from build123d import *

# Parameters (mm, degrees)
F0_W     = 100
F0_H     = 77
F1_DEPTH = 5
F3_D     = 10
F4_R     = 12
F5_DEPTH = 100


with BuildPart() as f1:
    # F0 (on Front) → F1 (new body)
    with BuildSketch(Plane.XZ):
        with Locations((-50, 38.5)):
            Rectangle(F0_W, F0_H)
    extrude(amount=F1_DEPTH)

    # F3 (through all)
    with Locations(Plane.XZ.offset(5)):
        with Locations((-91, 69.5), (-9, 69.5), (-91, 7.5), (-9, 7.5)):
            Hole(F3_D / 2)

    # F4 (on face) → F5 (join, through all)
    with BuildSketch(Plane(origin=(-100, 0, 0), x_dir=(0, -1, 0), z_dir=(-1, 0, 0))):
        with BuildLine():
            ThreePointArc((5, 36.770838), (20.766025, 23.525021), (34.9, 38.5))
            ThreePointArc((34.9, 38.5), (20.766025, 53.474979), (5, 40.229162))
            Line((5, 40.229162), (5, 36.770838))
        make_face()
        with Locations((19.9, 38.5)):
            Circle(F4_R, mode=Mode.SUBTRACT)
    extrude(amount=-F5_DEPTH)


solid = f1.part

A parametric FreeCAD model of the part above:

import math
import FreeCAD as App
import Part
import Sketcher
Q = App.Units.Quantity

doc = App.newDocument("Part")
body = doc.addObject("PartDesign::Body", "Body")

sketch1 = doc.addObject("Sketcher::SketchObject", "Sketch")
body.addObject(sketch1)
sketch1.AttachmentSupport = (doc.XZ_Plane, [""])
sketch1.MapMode = "FlatFace"
sketch1.addGeometry([
    Part.LineSegment(App.Vector(-100, 77, 0), App.Vector(-100, 0, 0)),
    Part.LineSegment(App.Vector(-100, 0, 0), App.Vector(0, 0, 0)),
    Part.LineSegment(App.Vector(0, 0, 0), App.Vector(0, 77, 0)),
    Part.LineSegment(App.Vector(0, 77, 0), App.Vector(-100, 77, 0)),
], False)
sketch1.addConstraint([
    Sketcher.Constraint("Coincident", 0, 2, 1, 1),
    Sketcher.Constraint("Coincident", 1, 2, 2, 1),
    Sketcher.Constraint("Coincident", 2, 2, 3, 1),
    Sketcher.Constraint("Coincident", 3, 2, 0, 1),
    Sketcher.Constraint("Vertical", 0),
    Sketcher.Constraint("Horizontal", 1),
    Sketcher.Constraint("Vertical", 2),
    Sketcher.Constraint("Horizontal", 3),
    Sketcher.Constraint("Coincident", 1, 2, -1, 1),
    Sketcher.Constraint("DistanceX", 1, 1, 1, 2, Q("100 mm")),
    Sketcher.Constraint("DistanceY", 0, 2, 0, 1, Q("77 mm")),
])
pad1 = doc.addObject("PartDesign::Pad", "Pad")
body.addObject(pad1)
pad1.Profile = sketch1
pad1.Length = 5

sketch2 = doc.addObject("Sketcher::SketchObject", "Sketch001")
body.addObject(sketch2)
sketch2.AttachmentSupport = (doc.XZ_Plane, [""])
sketch2.MapMode = "FlatFace"
sketch2.AttachmentOffset = App.Placement(App.Vector(0, 0, 5), App.Rotation())
sketch2.addGeometry([
    Part.Circle(App.Vector(-91, 70, 0), App.Vector(0, 0, 1), 5),
    Part.Circle(App.Vector(-9, 70, 0), App.Vector(0, 0, 1), 5),
    Part.Circle(App.Vector(-91, 8, 0), App.Vector(0, 0, 1), 5),
    Part.Circle(App.Vector(-9, 8, 0), App.Vector(0, 0, 1), 5),
], False)
sketch2.addConstraint([
    Sketcher.Constraint("Equal", 0, 1),
    Sketcher.Constraint("Equal", 1, 2),
    Sketcher.Constraint("Equal", 2, 3),
    Sketcher.Constraint("Horizontal", 0, 3, 1, 3),
    Sketcher.Constraint("Horizontal", 2, 3, 3, 3),
    Sketcher.Constraint("Vertical", 0, 3, 2, 3),
    Sketcher.Constraint("Vertical", 1, 3, 3, 3),
    Sketcher.Constraint("Diameter", 0, Q("10 mm")),
    Sketcher.Constraint("DistanceX", 0, 3, -1, 1, Q("91 mm")),
    Sketcher.Constraint("DistanceX", 1, 3, -1, 1, Q("9 mm")),
    Sketcher.Constraint("DistanceY", 2, 3, 0, 3, Q("62 mm")),
    Sketcher.Constraint("DistanceY", -1, 1, 0, 3, Q("69.5 mm")),
])
doc.recompute()
hole = doc.addObject("PartDesign::Hole", "Hole")
body.addObject(hole)
hole.Profile = sketch2
hole.ThreadType = "None"
hole.Diameter = 10
hole.DepthType = "ThroughAll"

sketch3 = doc.addObject("Sketcher::SketchObject", "Sketch002")
body.addObject(sketch3)
sketch3.AttachmentSupport = (doc.YZ_Plane, [""])
sketch3.MapMode = "FlatFace"
sketch3.AttachmentOffset = App.Placement(App.Vector(0, 0, -100), App.Rotation())
sketch3.addGeometry([
    Part.ArcOfCircle(Part.Circle(App.Vector(-19.9, 38.5, 0), App.Vector(0, 0, 1), 15), math.radians(-180), math.radians(-7)),
    Part.ArcOfCircle(Part.Circle(App.Vector(-19.9, 38.5, 0), App.Vector(0, 0, 1), 15), math.radians(7), math.radians(180)),
    Part.LineSegment(App.Vector(-5, 40.2, 0), App.Vector(-5, 36.8, 0)),
    Part.Circle(App.Vector(-19.9, 38.5, 0), App.Vector(0, 0, 1), 12),
], False)
sketch3.addConstraint([
    Sketcher.Constraint("Tangent", 0, 1, 1, 2),
    Sketcher.Constraint("Coincident", 1, 1, 2, 1),
    Sketcher.Constraint("Coincident", 2, 2, 0, 2),
    Sketcher.Constraint("Vertical", 2),
    Sketcher.Constraint("Coincident", 3, 3, 0, 3),
    Sketcher.Constraint("Equal", 0, 1),
    Sketcher.Constraint("Horizontal", 3, 3, 0, 1),
    Sketcher.Constraint("Diameter", 3, Q("24 mm")),
    Sketcher.Constraint("Radius", 0, Q("15 mm")),
    Sketcher.Constraint("DistanceX", 1, 1, -1, 1, Q("5 mm")),
    Sketcher.Constraint("DistanceX", 0, 3, -1, 1, Q("19.9 mm")),
    Sketcher.Constraint("DistanceY", -1, 1, 0, 3, Q("38.5 mm")),
])
pad2 = doc.addObject("PartDesign::Pad", "Pad001")
body.addObject(pad2)
pad2.Profile = sketch3
pad2.Length = 100

doc.recompute()
